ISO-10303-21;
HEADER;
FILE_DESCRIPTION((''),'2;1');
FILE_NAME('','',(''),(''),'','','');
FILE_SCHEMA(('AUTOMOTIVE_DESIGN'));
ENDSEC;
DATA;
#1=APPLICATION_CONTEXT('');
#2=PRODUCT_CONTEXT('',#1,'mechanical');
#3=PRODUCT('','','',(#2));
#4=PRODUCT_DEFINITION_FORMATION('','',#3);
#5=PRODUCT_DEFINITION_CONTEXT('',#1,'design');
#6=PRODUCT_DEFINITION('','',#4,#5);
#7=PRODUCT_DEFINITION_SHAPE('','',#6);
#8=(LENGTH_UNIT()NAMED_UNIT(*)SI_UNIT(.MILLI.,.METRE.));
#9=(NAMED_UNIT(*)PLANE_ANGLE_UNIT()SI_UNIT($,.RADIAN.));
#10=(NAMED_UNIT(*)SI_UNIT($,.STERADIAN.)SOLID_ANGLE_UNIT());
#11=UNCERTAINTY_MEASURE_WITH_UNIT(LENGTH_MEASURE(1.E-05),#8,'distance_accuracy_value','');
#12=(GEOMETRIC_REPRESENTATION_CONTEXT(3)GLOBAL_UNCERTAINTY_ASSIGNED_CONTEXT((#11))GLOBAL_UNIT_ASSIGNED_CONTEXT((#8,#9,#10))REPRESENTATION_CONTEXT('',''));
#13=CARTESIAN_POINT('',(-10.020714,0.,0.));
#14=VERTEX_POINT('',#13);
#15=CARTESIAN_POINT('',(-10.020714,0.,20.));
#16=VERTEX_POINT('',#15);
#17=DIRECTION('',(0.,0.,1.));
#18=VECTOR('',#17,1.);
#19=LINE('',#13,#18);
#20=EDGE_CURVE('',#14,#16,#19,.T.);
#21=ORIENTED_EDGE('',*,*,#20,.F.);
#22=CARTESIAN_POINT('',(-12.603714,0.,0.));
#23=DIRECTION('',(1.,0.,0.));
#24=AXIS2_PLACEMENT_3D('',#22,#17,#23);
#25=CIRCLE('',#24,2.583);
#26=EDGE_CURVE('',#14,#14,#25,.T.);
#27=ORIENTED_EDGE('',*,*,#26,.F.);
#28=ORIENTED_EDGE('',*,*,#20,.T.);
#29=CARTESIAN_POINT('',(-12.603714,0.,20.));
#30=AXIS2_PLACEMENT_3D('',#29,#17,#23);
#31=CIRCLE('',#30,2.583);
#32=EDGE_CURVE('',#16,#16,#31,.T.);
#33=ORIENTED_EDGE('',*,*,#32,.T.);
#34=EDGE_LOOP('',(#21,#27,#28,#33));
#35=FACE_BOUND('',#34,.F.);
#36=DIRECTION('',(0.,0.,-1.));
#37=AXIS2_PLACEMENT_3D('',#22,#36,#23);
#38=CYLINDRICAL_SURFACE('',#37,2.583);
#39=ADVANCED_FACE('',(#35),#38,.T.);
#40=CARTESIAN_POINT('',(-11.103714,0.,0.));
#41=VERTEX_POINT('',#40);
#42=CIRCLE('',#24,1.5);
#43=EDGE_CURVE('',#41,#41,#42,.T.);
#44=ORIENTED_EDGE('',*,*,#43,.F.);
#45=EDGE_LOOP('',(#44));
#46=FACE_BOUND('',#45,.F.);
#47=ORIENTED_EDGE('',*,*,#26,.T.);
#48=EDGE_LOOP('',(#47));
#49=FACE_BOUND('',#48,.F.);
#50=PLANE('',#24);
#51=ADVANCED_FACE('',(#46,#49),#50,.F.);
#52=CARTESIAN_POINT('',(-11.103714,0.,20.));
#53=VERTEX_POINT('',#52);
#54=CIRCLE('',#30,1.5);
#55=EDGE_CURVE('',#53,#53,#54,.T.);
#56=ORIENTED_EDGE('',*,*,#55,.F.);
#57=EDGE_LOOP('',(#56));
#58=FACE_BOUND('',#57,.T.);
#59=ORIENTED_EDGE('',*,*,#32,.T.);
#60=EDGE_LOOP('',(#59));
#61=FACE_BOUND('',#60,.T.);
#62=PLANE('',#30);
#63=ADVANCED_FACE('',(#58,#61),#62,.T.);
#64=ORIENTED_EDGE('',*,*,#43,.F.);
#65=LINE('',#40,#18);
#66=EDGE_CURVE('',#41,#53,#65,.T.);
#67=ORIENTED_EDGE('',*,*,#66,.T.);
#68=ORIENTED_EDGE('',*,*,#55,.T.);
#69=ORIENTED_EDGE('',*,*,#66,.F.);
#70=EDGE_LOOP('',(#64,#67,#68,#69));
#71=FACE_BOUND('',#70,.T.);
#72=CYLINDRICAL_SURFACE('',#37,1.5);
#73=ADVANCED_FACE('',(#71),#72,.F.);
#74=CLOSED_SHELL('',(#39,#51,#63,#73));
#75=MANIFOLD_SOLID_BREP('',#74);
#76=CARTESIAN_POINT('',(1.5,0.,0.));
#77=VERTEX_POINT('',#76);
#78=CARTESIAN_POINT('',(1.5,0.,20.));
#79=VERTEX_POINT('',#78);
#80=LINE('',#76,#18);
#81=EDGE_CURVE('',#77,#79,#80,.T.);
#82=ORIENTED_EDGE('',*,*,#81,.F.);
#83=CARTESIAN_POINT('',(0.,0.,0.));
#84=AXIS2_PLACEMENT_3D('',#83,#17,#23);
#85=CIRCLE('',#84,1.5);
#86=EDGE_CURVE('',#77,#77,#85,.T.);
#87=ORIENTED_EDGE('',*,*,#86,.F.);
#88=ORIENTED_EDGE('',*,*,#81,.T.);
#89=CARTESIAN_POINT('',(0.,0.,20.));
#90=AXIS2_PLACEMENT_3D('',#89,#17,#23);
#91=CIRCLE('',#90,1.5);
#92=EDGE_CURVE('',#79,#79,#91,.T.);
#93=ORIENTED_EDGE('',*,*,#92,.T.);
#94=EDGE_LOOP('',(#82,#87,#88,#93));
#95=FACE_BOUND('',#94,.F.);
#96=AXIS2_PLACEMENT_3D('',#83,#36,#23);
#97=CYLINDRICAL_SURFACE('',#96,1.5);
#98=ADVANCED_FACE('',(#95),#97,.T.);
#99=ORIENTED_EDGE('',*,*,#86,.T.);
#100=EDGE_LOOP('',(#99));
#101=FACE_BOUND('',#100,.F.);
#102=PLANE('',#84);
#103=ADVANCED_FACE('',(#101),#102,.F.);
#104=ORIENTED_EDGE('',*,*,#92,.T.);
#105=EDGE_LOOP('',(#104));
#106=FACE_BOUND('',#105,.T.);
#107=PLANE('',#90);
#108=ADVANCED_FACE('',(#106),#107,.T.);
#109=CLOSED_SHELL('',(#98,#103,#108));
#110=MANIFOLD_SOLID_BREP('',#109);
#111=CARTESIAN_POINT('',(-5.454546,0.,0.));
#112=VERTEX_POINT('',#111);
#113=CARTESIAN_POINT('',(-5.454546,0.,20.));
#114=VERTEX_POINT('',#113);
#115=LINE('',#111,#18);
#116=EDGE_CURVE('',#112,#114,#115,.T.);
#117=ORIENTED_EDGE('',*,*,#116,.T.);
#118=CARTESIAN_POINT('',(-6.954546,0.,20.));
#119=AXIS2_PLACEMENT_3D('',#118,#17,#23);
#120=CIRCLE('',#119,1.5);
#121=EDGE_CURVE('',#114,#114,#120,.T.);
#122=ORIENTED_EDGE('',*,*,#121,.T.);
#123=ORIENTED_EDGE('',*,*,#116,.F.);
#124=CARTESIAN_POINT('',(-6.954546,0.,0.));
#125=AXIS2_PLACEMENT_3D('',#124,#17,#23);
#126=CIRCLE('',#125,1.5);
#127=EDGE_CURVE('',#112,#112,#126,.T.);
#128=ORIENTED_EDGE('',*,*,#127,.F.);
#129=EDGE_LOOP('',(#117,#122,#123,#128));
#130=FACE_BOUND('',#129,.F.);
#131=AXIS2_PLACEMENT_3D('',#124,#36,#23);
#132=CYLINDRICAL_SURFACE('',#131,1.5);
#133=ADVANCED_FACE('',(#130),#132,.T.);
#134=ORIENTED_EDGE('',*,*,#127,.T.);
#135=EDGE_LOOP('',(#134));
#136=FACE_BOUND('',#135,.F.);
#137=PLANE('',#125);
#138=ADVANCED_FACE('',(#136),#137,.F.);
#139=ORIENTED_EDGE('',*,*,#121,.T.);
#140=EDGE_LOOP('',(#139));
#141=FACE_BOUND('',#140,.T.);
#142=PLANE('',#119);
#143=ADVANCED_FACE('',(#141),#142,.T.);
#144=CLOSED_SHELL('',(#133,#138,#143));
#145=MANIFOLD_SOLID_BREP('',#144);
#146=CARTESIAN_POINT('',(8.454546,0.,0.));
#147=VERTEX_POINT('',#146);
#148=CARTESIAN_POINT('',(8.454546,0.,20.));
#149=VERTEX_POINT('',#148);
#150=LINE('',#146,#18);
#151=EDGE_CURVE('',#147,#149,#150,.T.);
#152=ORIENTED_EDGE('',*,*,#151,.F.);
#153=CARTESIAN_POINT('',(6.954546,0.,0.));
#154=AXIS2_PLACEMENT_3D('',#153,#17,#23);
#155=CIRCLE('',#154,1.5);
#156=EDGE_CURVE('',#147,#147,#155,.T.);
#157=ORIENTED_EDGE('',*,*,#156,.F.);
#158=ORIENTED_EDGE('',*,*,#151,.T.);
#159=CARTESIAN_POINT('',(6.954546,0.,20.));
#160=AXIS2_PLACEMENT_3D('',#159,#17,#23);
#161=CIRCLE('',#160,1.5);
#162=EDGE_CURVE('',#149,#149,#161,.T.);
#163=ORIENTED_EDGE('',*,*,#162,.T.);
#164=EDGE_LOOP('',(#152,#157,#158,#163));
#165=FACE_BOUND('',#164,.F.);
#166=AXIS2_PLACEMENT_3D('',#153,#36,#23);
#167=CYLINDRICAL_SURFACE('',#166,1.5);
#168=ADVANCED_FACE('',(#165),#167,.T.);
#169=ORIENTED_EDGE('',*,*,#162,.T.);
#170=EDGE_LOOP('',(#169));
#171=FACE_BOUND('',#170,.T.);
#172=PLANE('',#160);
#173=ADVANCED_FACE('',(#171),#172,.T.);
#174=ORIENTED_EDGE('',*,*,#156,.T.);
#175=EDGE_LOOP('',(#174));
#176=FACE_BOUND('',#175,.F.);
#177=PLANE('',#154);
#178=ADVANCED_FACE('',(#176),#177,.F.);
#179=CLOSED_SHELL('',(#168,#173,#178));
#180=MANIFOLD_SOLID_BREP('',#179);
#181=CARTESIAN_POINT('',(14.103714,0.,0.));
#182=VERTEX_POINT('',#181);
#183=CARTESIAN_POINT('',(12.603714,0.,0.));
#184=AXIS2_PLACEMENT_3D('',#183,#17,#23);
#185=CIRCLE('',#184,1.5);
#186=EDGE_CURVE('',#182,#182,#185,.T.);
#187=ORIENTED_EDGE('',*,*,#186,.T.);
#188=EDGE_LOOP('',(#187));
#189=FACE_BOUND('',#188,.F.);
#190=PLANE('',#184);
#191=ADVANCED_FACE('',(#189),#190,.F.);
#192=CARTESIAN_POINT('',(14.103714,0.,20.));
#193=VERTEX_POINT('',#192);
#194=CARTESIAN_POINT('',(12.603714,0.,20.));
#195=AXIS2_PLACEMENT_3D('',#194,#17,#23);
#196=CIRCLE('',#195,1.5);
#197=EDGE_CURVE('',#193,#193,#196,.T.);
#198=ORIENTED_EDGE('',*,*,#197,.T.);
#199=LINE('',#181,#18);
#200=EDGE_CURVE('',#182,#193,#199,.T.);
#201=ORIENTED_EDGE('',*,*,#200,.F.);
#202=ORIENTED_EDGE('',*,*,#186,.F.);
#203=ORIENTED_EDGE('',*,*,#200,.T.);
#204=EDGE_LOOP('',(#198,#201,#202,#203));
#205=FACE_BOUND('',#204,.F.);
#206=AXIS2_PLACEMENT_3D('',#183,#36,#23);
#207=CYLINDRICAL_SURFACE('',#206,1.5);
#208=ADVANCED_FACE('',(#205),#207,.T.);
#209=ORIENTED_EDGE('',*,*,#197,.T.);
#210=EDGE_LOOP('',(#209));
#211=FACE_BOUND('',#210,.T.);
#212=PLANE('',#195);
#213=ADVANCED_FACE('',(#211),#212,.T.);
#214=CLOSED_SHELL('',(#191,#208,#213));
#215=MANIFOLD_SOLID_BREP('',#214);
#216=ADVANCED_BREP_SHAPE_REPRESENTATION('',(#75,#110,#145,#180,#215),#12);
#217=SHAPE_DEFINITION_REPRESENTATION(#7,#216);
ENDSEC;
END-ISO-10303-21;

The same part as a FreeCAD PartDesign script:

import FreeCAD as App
import Part
import Sketcher
Q = App.Units.Quantity

doc = App.newDocument("Part")
body = doc.addObject("PartDesign::Body", "Body")
body.AllowCompound = True

sketch1 = doc.addObject("Sketcher::SketchObject", "Sketch")
body.addObject(sketch1)
sketch1.AttachmentSupport = (doc.XY_Plane, [""])
sketch1.MapMode = "FlatFace"
sketch1.addGeometry([
    Part.Circle(App.Vector(0, 0, 0), App.Vector(0, 0, 1), 1.5),
    Part.Circle(App.Vector(6.954546, 0, 0), App.Vector(0, 0, 1), 1.5),
    Part.Circle(App.Vector(12.603714, 0, 0), App.Vector(0, 0, 1), 1.5),
    Part.Circle(App.Vector(-6.954546, 0, 0), App.Vector(0, 0, 1), 1.5),
    Part.Circle(App.Vector(-12.603714, 0, 0), App.Vector(0, 0, 1), 2.583),
    Part.Circle(App.Vector(-12.603714, 0, 0), App.Vector(0, 0, 1), 1.5),
], False)
sketch1.addConstraint([
    Sketcher.Constraint("Coincident", 0, 3, -1, 1),
    Sketcher.Constraint("Coincident", 5, 3, 4, 3),
    Sketcher.Constraint("Equal", 0, 1),
    Sketcher.Constraint("Equal", 1, 2),
    Sketcher.Constraint("Equal", 2, 3),
    Sketcher.Constraint("Equal", 3, 5),
    Sketcher.Constraint("Symmetric", 1, 3, 3, 3, -1, 1),
    Sketcher.Constraint("Symmetric", 2, 3, 4, 3, -1, 1),
    Sketcher.Constraint("PointOnObject", 1, 3, -1),
    Sketcher.Constraint("PointOnObject", 2, 3, -1),
    Sketcher.Constraint("Diameter", 0, Q("3 mm")),
    Sketcher.Constraint("Diameter", 4, Q("5.166 mm")),
    Sketcher.Constraint("DistanceX", 1, 3, 2, 3, Q("5.649168 mm")),
    Sketcher.Constraint("DistanceX", 3, 3, 1, 3, Q("13.909092 mm")),
])
pad1 = doc.addObject("PartDesign::Pad", "Pad")
body.addObject(pad1)
pad1.Profile = sketch1
pad1.Length = 20

doc.recompute()
